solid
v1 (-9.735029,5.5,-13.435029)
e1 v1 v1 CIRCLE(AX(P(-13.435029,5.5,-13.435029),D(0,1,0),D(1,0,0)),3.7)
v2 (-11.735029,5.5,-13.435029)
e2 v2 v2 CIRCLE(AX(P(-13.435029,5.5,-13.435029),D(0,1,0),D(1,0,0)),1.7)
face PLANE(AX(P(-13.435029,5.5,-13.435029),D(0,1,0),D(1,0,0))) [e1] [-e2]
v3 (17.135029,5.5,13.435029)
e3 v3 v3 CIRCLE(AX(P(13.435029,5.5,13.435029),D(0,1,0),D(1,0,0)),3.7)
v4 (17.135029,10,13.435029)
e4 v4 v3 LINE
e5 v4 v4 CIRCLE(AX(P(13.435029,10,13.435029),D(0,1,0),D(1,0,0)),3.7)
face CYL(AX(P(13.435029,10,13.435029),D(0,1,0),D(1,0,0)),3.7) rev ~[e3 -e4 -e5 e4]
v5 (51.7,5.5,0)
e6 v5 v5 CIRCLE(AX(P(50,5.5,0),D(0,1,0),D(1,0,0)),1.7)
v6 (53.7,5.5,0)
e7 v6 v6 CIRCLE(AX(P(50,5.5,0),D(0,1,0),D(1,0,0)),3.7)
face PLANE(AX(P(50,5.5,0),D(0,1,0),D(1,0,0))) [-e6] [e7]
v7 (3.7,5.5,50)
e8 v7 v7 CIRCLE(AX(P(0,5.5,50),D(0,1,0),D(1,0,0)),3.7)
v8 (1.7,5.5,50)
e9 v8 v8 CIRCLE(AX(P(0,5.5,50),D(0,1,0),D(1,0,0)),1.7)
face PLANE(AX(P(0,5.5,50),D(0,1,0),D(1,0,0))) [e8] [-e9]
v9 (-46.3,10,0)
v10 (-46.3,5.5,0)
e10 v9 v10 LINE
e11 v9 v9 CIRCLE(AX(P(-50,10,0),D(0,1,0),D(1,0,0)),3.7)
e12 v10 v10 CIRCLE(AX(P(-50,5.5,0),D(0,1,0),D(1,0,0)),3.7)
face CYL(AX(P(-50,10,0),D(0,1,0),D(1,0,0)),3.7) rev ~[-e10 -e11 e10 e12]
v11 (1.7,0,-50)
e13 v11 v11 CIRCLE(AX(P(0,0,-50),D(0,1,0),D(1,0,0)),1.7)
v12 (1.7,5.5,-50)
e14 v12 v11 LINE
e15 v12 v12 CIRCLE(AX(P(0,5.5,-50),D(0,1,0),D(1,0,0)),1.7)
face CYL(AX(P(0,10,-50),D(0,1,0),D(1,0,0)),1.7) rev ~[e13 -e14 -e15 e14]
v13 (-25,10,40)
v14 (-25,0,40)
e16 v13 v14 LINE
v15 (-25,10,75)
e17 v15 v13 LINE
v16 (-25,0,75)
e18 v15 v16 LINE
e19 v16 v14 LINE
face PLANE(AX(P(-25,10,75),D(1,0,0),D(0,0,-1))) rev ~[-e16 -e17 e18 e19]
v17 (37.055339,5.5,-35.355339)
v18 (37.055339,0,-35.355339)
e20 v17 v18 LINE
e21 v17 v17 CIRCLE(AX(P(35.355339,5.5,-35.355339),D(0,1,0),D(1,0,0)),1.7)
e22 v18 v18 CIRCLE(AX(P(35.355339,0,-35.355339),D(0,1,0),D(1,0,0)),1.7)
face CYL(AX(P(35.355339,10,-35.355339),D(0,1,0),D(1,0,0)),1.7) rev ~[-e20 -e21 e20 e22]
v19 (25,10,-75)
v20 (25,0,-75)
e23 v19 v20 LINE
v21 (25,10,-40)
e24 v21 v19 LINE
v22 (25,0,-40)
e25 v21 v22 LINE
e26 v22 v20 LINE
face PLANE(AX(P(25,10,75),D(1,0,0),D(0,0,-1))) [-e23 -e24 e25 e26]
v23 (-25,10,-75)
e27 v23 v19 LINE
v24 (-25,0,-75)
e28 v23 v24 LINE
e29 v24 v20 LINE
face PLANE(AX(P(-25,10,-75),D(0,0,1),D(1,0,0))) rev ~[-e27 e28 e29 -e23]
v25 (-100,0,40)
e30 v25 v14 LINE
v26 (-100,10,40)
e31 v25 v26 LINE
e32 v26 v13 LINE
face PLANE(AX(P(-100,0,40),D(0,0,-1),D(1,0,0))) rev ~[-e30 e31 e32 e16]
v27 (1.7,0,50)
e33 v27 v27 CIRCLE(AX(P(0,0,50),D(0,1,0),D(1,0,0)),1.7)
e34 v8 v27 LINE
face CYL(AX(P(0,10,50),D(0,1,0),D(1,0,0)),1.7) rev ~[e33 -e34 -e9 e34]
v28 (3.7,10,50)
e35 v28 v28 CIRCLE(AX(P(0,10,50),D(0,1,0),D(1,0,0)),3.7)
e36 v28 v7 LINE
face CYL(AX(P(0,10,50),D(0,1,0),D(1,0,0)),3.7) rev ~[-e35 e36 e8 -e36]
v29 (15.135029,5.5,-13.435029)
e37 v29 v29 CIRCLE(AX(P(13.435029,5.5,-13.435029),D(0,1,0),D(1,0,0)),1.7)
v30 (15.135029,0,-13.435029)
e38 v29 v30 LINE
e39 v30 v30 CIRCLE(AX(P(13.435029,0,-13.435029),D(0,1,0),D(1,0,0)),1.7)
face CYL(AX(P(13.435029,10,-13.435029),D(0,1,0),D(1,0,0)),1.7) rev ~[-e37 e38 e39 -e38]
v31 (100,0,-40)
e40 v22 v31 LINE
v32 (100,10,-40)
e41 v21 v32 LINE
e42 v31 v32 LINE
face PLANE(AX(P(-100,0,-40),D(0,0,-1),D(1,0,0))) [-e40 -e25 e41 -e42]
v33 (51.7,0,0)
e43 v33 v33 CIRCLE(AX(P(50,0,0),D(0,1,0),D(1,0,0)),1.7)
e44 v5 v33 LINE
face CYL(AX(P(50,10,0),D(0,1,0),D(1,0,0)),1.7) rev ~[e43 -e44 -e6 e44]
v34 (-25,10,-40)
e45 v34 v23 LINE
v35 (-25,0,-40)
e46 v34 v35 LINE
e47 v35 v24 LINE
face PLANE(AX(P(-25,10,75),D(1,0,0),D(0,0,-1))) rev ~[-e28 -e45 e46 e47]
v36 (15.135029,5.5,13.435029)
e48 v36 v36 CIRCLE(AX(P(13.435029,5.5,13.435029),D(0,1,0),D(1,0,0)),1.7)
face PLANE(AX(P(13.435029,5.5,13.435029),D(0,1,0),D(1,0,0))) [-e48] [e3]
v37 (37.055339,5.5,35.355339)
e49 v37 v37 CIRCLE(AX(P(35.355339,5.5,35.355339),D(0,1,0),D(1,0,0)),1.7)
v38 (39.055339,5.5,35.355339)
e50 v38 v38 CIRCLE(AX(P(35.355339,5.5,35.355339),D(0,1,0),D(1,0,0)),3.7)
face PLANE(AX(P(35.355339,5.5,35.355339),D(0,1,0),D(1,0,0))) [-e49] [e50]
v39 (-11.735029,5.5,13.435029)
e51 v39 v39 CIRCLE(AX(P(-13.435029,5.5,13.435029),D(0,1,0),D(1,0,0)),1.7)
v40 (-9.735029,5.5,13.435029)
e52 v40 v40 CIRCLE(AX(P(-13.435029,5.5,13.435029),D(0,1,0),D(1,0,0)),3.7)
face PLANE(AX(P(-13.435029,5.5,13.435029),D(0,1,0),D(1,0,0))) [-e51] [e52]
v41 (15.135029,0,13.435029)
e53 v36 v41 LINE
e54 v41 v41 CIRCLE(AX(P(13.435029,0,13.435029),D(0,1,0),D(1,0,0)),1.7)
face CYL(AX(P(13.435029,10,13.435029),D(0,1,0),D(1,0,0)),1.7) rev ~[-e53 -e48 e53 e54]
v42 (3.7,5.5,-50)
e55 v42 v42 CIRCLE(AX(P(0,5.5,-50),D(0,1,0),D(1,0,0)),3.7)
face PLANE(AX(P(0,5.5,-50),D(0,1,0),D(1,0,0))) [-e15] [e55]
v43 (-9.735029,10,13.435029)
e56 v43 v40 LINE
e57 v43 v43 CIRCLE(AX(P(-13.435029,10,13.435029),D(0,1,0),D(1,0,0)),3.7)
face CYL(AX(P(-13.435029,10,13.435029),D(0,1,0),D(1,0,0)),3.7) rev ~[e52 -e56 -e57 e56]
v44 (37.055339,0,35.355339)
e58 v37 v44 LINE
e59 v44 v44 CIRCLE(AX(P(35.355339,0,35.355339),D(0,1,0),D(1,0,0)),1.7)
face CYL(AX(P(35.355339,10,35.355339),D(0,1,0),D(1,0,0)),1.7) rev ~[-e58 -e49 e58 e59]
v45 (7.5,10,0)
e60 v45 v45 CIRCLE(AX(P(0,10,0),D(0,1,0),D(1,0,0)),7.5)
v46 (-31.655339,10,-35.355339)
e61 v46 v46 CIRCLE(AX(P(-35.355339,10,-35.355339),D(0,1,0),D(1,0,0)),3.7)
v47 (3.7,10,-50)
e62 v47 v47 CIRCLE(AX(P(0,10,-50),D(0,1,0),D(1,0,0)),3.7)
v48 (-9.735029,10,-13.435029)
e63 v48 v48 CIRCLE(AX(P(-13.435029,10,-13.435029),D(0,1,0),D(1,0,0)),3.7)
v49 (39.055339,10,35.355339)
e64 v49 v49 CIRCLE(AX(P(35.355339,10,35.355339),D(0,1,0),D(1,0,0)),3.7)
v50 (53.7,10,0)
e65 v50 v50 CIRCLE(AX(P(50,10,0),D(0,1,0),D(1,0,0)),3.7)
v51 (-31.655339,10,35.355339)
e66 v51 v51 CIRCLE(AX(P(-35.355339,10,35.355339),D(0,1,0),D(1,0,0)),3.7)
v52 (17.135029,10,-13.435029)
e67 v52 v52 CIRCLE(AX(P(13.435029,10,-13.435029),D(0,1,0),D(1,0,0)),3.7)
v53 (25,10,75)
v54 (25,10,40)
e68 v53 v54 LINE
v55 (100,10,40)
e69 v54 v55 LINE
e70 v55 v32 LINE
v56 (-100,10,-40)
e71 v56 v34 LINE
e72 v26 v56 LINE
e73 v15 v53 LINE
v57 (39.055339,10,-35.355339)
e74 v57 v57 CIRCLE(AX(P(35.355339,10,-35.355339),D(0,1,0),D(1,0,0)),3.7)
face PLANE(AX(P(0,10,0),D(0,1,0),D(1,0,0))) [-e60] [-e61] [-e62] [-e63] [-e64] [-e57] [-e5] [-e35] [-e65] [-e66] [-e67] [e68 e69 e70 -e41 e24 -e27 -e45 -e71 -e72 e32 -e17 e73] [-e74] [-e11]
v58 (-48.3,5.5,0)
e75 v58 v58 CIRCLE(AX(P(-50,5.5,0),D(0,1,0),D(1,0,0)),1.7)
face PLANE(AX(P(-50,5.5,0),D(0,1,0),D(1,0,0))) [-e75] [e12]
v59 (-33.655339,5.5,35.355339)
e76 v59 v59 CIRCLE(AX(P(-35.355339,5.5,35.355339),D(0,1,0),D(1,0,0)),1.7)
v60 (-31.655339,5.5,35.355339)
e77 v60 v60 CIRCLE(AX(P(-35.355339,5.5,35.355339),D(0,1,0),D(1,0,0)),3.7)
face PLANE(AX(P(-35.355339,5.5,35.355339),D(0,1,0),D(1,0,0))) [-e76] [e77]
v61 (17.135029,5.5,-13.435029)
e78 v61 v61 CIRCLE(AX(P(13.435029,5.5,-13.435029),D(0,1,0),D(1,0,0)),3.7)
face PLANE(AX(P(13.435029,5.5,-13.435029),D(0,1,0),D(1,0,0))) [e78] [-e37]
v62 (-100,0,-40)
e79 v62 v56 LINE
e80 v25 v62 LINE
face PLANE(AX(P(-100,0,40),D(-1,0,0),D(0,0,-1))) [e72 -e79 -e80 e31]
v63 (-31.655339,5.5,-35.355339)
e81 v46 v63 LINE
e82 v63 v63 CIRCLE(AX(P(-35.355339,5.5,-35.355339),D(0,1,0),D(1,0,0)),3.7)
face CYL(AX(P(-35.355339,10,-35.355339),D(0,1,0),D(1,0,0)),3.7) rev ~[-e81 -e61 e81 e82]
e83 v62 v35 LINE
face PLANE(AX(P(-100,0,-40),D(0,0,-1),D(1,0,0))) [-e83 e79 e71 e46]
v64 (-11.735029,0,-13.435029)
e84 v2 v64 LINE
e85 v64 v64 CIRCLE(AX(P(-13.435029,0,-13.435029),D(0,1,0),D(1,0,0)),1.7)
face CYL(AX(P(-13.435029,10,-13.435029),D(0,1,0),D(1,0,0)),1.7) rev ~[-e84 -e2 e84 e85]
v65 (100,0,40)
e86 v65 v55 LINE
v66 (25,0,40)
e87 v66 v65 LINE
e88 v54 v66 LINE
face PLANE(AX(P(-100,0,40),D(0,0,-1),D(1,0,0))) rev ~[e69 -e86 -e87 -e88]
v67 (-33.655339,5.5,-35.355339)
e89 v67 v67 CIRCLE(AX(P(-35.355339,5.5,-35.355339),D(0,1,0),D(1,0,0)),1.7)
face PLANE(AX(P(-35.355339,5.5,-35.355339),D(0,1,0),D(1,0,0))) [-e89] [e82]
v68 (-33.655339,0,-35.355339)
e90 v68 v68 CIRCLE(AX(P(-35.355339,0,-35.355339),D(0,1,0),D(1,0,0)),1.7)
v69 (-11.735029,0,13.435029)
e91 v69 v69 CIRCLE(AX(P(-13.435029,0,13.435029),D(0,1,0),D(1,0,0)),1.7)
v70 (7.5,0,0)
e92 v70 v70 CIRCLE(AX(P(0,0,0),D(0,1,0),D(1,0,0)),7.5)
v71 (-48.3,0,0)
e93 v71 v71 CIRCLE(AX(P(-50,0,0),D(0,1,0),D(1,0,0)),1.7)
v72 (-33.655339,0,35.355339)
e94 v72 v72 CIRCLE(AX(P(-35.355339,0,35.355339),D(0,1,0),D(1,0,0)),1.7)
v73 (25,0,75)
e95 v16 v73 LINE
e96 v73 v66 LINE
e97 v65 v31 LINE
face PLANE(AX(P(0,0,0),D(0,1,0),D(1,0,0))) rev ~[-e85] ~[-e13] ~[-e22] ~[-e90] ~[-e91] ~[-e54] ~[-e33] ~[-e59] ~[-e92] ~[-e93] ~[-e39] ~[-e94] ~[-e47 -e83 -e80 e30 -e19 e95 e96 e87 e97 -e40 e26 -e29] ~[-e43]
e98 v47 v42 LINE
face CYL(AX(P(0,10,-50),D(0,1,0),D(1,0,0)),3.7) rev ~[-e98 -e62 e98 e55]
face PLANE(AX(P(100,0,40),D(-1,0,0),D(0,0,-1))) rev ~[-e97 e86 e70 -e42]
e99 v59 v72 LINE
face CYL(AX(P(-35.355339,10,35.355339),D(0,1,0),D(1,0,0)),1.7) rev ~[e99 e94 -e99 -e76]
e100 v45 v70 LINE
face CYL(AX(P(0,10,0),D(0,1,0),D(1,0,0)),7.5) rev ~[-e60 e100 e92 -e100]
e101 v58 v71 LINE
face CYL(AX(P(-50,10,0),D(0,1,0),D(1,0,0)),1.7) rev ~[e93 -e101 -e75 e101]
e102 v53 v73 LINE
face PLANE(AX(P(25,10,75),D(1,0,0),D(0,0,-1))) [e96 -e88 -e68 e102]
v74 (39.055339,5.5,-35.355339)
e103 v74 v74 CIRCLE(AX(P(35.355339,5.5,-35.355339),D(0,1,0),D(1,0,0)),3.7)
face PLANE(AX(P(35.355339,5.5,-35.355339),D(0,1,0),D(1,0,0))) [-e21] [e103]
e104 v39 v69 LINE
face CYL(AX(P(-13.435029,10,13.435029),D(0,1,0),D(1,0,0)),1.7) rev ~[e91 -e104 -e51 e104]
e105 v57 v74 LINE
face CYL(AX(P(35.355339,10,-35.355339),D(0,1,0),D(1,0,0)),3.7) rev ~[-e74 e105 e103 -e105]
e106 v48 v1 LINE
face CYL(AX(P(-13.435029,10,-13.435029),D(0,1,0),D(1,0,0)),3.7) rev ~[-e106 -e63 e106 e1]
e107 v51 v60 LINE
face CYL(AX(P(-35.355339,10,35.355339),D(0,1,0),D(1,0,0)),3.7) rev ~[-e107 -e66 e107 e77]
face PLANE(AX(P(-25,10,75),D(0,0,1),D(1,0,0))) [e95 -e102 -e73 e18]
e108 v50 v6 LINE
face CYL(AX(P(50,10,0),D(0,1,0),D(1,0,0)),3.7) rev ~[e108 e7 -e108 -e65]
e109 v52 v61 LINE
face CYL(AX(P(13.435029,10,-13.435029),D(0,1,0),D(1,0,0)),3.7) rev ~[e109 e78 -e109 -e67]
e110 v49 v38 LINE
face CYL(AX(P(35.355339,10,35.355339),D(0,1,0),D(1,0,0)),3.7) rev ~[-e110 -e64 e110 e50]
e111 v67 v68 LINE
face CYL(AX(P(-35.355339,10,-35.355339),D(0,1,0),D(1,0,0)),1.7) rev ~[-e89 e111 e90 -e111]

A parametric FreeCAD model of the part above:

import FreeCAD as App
import Part
import Sketcher


def add_polygon(sketch, points):
    """Adds a closed chain of lines whose ends are joined by coincident constraints."""
    first, n = sketch.GeometryCount, len(points)
    for a, b in zip(points, points[1:] + points[:1]):
        sketch.addGeometry(Part.LineSegment(App.Vector(*a, 0), App.Vector(*b, 0)), False)
    for i in range(n):
        sketch.addConstraint(Sketcher.Constraint("Coincident", first + i, 2, first + (i + 1) % n, 1))

doc = App.newDocument("Part")
params = doc.addObject("Spreadsheet::Sheet", "Params")
for row, (alias, value) in enumerate([
    ("sketch1_width", "200 mm"),
    ("sketch1_height", "80 mm"),
    ("pad1_length", "10 mm"),
    ("sketch2_width", "50 mm"),
    ("sketch2_height", "150 mm"),
    ("pad2_length", "10 mm"),
    ("sketch3_diameter", "15 mm"),
    ("sketch3_diameter2", "3.4 mm"),
    ("pocket1_length", "10 mm"),
    ("sketch4_diameter", "3.4 mm"),
    ("pocket2_length", "10 mm"),
    ("sketch5_diameter", "7.4 mm"),
    ("pocket3_length", "4.5 mm"),
], start=1):
    params.set(f"A{row}", alias)
    params.set(f"B{row}", "=" + value)
    params.setAlias(f"B{row}", alias)

body = doc.addObject("PartDesign::Body", "Body")

sketch1 = doc.addObject("Sketcher::SketchObject", "Sketch")
body.addObject(sketch1)
sketch1.AttachmentSupport = (doc.XZ_Plane, [""])
sketch1.MapMode = "FlatFace"
add_polygon(sketch1, [(-100, -40), (-100, 40), (100, 40), (100, -40)])
sketch1.addConstraint([
    Sketcher.Constraint("Vertical", 0),
    Sketcher.Constraint("Horizontal", 1),
    Sketcher.Constraint("Vertical", 2),
    Sketcher.Constraint("Horizontal", 3),
    Sketcher.Constraint("Symmetric", 0, 2, 2, 2, -1, 1),
    Sketcher.Constraint("DistanceX", 1, 1, 1, 2, 200.0),
    Sketcher.Constraint("DistanceY", 0, 1, 0, 2, 80.0),
])
sketch1.setExpression("Constraints[9]", "Params.sketch1_width")
sketch1.setExpression("Constraints[10]", "Params.sketch1_height")
pad1 = doc.addObject("PartDesign::Pad", "Pad")
body.addObject(pad1)
pad1.Profile = sketch1
pad1.setExpression("Length", "Params.pad1_length")
pad1.Reversed = True

sketch2 = doc.addObject("Sketcher::SketchObject", "Sketch001")
body.addObject(sketch2)
sketch2.AttachmentSupport = (doc.XZ_Plane, [""])
sketch2.MapMode = "FlatFace"
sketch2.AttachmentOffset = App.Placement(App.Vector(0, 0, -10), App.Rotation())
add_polygon(sketch2, [(-25, -75), (-25, 75), (25, 75), (25, -75)])
sketch2.addConstraint([
    Sketcher.Constraint("Vertical", 0),
    Sketcher.Constraint("Horizontal", 1),
    Sketcher.Constraint("Vertical", 2),
    Sketcher.Constraint("Horizontal", 3),
    Sketcher.Constraint("Symmetric", 0, 2, 2, 2, -1, 1),
    Sketcher.Constraint("DistanceX", 1, 1, 1, 2, 50.0),
    Sketcher.Constraint("DistanceY", 0, 1, 0, 2, 150.0),
])
sketch2.setExpression("Constraints[9]", "Params.sketch2_width")
sketch2.setExpression("Constraints[10]", "Params.sketch2_height")
pad2 = doc.addObject("PartDesign::Pad", "Pad001")
body.addObject(pad2)
pad2.Profile = sketch2
pad2.setExpression("Length", "Params.pad2_length")

sketch3 = doc.addObject("Sketcher::SketchObject", "Sketch002")
body.addObject(sketch3)
sketch3.AttachmentSupport = (doc.XZ_Plane, [""])
sketch3.MapMode = "FlatFace"
sketch3.AttachmentOffset = App.Placement(App.Vector(0, 0, -10), App.Rotation())
sketch3.addGeometry([
    Part.Circle(App.Vector(13.4, -13.4, 0), App.Vector(0, 0, 1), 1.7),
    Part.Circle(App.Vector(13.4, 13.4, 0), App.Vector(0, 0, 1), 1.7),
    Part.Circle(App.Vector(-13.4, 13.4, 0), App.Vector(0, 0, 1), 1.7),
    Part.Circle(App.Vector(-13.4, -13.4, 0), App.Vector(0, 0, 1), 1.7),
    Part.Circle(App.Vector(0, 0, 0), App.Vector(0, 0, 1), 7.5),
], False)
sketch3.addConstraint([
    Sketcher.Constraint("Coincident", 4, 3, -1, 1),
    Sketcher.Constraint("Equal", 0, 1),
    Sketcher.Constraint("Equal", 1, 2),
    Sketcher.Constraint("Equal", 2, 3),
    Sketcher.Constraint("Symmetric", 0, 3, 2, 3, -1, 1),
    Sketcher.Constraint("Symmetric", 1, 3, 3, 3, -1, 1),
    Sketcher.Constraint("Symmetric", 1, 3, 2, 3, -2),
    Sketcher.Constraint("Diameter", 4, 15.0),
    Sketcher.Constraint("Diameter", 0, 3.4),
    Sketcher.Constraint("DistanceX", -1, 1, 0, 3, 13.435029),
    Sketcher.Constraint("DistanceY", 0, 3, -1, 1, 13.435029),
])
sketch3.setExpression("Constraints[7]", "Params.sketch3_diameter")
sketch3.setExpression("Constraints[8]", "Params.sketch3_diameter2")
pocket1 = doc.addObject("PartDesign::Pocket", "Pocket")
body.addObject(pocket1)
pocket1.Profile = sketch3
pocket1.setExpression("Length", "Params.pocket1_length")
pocket1.Reversed = True

sketch4 = doc.addObject("Sketcher::SketchObject", "Sketch003")
body.addObject(sketch4)
sketch4.AttachmentSupport = (doc.XZ_Plane, [""])
sketch4.MapMode = "FlatFace"
sketch4.AttachmentOffset = App.Placement(App.Vector(0, 0, -10), App.Rotation())
sketch4.addGeometry([
    Part.Circle(App.Vector(0, -50, 0), App.Vector(0, 0, 1), 1.7),
    Part.Circle(App.Vector(35.4, -35.4, 0), App.Vector(0, 0, 1), 1.7),
    Part.Circle(App.Vector(50, 0, 0), App.Vector(0, 0, 1), 1.7),
    Part.Circle(App.Vector(35.4, 35.4, 0), App.Vector(0, 0, 1), 1.7),
    Part.Circle(App.Vector(0, 50, 0), App.Vector(0, 0, 1), 1.7),
    Part.Circle(App.Vector(-35.4, 35.4, 0), App.Vector(0, 0, 1), 1.7),
    Part.Circle(App.Vector(-50, 0, 0), App.Vector(0, 0, 1), 1.7),
    Part.Circle(App.Vector(-35.4, -35.4, 0), App.Vector(0, 0, 1), 1.7),
], False)
sketch4.addConstraint([
    Sketcher.Constraint("Equal", 0, 1),
    Sketcher.Constraint("Equal", 1, 2),
    Sketcher.Constraint("Equal", 2, 3),
    Sketcher.Constraint("Equal", 3, 4),
    Sketcher.Constraint("Equal", 4, 5),
    Sketcher.Constraint("Equal", 5, 6),
    Sketcher.Constraint("Equal", 6, 7),
    Sketcher.Constraint("Symmetric", 0, 3, 4, 3, -1, 1),
    Sketcher.Constraint("Symmetric", 1, 3, 5, 3, -1, 1),
    Sketcher.Constraint("Symmetric", 2, 3, 6, 3, -1, 1),
    Sketcher.Constraint("Symmetric", 3, 3, 7, 3, -1, 1),
    Sketcher.Constraint("Symmetric", 3, 3, 5, 3, -2),
    Sketcher.Constraint("PointOnObject", 0, 3, -2),
    Sketcher.Constraint("PointOnObject", 2, 3, -1),
    Sketcher.Constraint("Diameter", 0, 3.4),
    Sketcher.Constraint("DistanceY", 0, 3, -1, 1, 50.0),
    Sketcher.Constraint("DistanceX", -1, 1, 2, 3, 50.0),
    Sketcher.Constraint("DistanceX", -1, 1, 1, 3, 35.355339),
    Sketcher.Constraint("DistanceY", 1, 3, -1, 1, 35.355339),
])
sketch4.setExpression("Constraints[14]", "Params.sketch4_diameter")
pocket2 = doc.addObject("PartDesign::Pocket", "Pocket001")
body.addObject(pocket2)
pocket2.Profile = sketch4
pocket2.setExpression("Length", "Params.pocket2_length")
pocket2.Reversed = True

sketch5 = doc.addObject("Sketcher::SketchObject", "Sketch004")
body.addObject(sketch5)
sketch5.AttachmentSupport = (doc.XZ_Plane, [""])
sketch5.MapMode = "FlatFace"
sketch5.AttachmentOffset = App.Placement(App.Vector(0, 0, -10), App.Rotation())
sketch5.addGeometry([
    Part.Circle(App.Vector(0, -50, 0), App.Vector(0, 0, 1), 3.7),
    Part.Circle(App.Vector(13.4, -13.4, 0), App.Vector(0, 0, 1), 3.7),
    Part.Circle(App.Vector(35.4, -35.4, 0), App.Vector(0, 0, 1), 3.7),
    Part.Circle(App.Vector(50, 0, 0), App.Vector(0, 0, 1), 3.7),
    Part.Circle(App.Vector(35.4, 35.4, 0), App.Vector(0, 0, 1), 3.7),
    Part.Circle(App.Vector(0, 50, 0), App.Vector(0, 0, 1), 3.7),
    Part.Circle(App.Vector(-35.4, 35.4, 0), App.Vector(0, 0, 1), 3.7),
    Part.Circle(App.Vector(-50, 0, 0), App.Vector(0, 0, 1), 3.7),
    Part.Circle(App.Vector(-35.4, -35.4, 0), App.Vector(0, 0, 1), 3.7),
    Part.Circle(App.Vector(13.4, 13.4, 0), App.Vector(0, 0, 1), 3.7),
    Part.Circle(App.Vector(-13.4, 13.4, 0), App.Vector(0, 0, 1), 3.7),
    Part.Circle(App.Vector(-13.4, -13.4, 0), App.Vector(0, 0, 1), 3.7),
], False)
sketch5.addConstraint([
    Sketcher.Constraint("Equal", 0, 1),
    Sketcher.Constraint("Equal", 1, 2),
    Sketcher.Constraint("Equal", 2, 3),
    Sketcher.Constraint("Equal", 3, 4),
    Sketcher.Constraint("Equal", 4, 5),
    Sketcher.Constraint("Equal", 5, 6),
    Sketcher.Constraint("Equal", 6, 7),
    Sketcher.Constraint("Equal", 7, 8),
    Sketcher.Constraint("Equal", 8, 9),
    Sketcher.Constraint("Equal", 9, 10),
    Sketcher.Constraint("Equal", 10, 11),
    Sketcher.Constraint("Symmetric", 0, 3, 5, 3, -1, 1),
    Sketcher.Constraint("Symmetric", 2, 3, 6, 3, -1, 1),
    Sketcher.Constraint("Symmetric", 3, 3, 7, 3, -1, 1),
    Sketcher.Constraint("Symmetric", 4, 3, 8, 3, -1, 1),
    Sketcher.Constraint("Symmetric", 1, 3, 10, 3, -1, 1),
    Sketcher.Constraint("Symmetric", 9, 3, 11, 3, -1, 1),
    Sketcher.Constraint("Symmetric", 4, 3, 6, 3, -2),
    Sketcher.Constraint("Symmetric", 9, 3, 10, 3, -2),
    Sketcher.Constraint("PointOnObject", 0, 3, -2),
    Sketcher.Constraint("PointOnObject", 3, 3, -1),
    Sketcher.Constraint("Diameter", 0, 7.4),
    Sketcher.Constraint("DistanceY", 0, 3, -1, 1, 50.0),
    Sketcher.Constraint("DistanceX", -1, 1, 3, 3, 50.0),
    Sketcher.Constraint("DistanceX", -1, 1, 1, 3, 13.435029),
    Sketcher.Constraint("DistanceY", 1, 3, -1, 1, 13.435029),
    Sketcher.Constraint("DistanceX", -1, 1, 2, 3, 35.355339),
    Sketcher.Constraint("DistanceY", 2, 3, -1, 1, 35.355339),
])
sketch5.setExpression("Constraints[21]", "Params.sketch5_diameter")
pocket3 = doc.addObject("PartDesign::Pocket", "Pocket002")
body.addObject(pocket3)
pocket3.Profile = sketch5
pocket3.setExpression("Length", "Params.pocket3_length")
pocket3.Reversed = True

doc.recompute()
